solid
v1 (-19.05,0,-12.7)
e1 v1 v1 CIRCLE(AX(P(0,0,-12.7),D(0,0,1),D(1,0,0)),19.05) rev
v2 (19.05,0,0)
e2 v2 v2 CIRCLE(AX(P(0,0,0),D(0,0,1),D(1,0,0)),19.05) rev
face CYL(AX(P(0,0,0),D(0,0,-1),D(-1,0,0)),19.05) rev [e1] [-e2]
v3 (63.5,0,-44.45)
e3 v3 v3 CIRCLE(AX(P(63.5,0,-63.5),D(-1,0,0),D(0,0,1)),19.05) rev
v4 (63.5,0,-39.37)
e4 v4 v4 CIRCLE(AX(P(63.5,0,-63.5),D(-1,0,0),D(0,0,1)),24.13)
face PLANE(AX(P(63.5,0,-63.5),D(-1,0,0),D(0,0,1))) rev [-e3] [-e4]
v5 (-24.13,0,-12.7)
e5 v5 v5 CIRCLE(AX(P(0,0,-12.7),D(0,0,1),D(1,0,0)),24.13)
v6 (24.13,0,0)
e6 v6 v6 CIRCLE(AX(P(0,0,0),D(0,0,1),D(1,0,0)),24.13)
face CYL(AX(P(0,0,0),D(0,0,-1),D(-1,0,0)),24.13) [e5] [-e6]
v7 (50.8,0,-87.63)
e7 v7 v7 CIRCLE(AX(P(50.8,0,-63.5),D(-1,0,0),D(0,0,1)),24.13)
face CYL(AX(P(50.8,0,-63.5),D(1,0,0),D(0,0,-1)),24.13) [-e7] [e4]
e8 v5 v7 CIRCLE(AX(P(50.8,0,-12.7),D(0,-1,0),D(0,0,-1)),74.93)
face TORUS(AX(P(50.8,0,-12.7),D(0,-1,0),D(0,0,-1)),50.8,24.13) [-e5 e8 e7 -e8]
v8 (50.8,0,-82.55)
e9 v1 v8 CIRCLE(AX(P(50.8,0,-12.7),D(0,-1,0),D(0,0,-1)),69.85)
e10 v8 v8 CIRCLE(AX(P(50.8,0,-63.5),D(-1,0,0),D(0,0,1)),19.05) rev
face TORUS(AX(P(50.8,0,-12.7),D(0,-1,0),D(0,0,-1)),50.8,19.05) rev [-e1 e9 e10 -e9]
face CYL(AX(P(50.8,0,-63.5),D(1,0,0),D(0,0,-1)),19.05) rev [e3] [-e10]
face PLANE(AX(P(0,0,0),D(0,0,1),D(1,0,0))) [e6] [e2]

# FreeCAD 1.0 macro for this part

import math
import FreeCAD as App
import Part
import Sketcher
from FreeCAD import Vector
Q = App.Units.Quantity

doc = App.newDocument("Part")
body = doc.addObject("PartDesign::Body", "Body")

# Sketch on XY plane
sketch1 = body.newObject("Sketcher::SketchObject", "Sketch")
sketch1.AttachmentSupport = (doc.getObject("XY_Plane"), [""])
sketch1.MapMode = "FlatFace"
sketch1.addGeometry([
    Part.Circle(Vector(0, 0, 0), Vector(0, 0, 1), 24),
    Part.Circle(Vector(0, 0, 0), Vector(0, 0, 1), 19),
], False)
sketch1.addConstraint([
    Sketcher.Constraint("Coincident", 0, 3, -1, 1),
    Sketcher.Constraint("Coincident", 1, 3, -1, 1),
    Sketcher.Constraint("Diameter", 0, Q("1.9 in")),
    Sketcher.Constraint("Diameter", 1, Q("1.5 in")),
])

# Sketch on XZ plane
sketch2 = body.newObject("Sketcher::SketchObject", "Sketch001")
sketch2.AttachmentSupport = (doc.getObject("XZ_Plane"), [""])
sketch2.MapMode = "FlatFace"
sketch2.addGeometry([
    Part.LineSegment(Vector(0, 0, 0), Vector(0, -13, 0)),
    Part.ArcOfCircle(Part.Circle(Vector(51, -13, 0), Vector(0, 0, 1), 51), math.radians(-180), math.radians(-90)),
    Part.LineSegment(Vector(51, -64, 0), Vector(64, -64, 0)),
], False)
sketch2.addConstraint([
    Sketcher.Constraint("Tangent", 0, 2, 1, 1),
    Sketcher.Constraint("Tangent", 1, 2, 2, 1),
    Sketcher.Constraint("Vertical", 0),
    Sketcher.Constraint("Horizontal", 2),
    Sketcher.Constraint("Coincident", 0, 1, -1, 1),
    Sketcher.Constraint("Equal", 2, 0),
    Sketcher.Constraint("Radius", 1, Q("2 in")),
    Sketcher.Constraint("DistanceX", 2, 1, 2, 2, Q("0.5 in")),
])
doc.recompute()

additivepipe = body.newObject("PartDesign::AdditivePipe", "AdditivePipe")
additivepipe.Profile = sketch1
additivepipe.Spine = (sketch2, ["Edge1", "Edge2", "Edge3"])

doc.recompute()
